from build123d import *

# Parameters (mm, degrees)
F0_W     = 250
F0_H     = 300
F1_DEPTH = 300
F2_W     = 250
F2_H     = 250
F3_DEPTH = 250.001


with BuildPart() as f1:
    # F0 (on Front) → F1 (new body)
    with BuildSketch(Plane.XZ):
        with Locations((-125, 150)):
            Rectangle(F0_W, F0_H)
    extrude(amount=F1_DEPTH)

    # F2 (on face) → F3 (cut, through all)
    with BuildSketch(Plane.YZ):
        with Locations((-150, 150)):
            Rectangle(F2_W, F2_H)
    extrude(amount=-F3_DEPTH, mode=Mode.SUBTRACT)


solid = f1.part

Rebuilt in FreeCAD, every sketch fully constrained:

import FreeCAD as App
import Part
import Sketcher
from FreeCAD import Vector
Q = App.Units.Quantity


def add_polygon(sketch, points):
    """Adds a closed chain of lines whose ends are joined by coincident constraints."""
    first, n = sketch.GeometryCount, len(points)
    for a, b in zip(points, points[1:] + points[:1]):
        sketch.addGeometry(Part.LineSegment(App.Vector(*a, 0), App.Vector(*b, 0)), False)
    for i in range(n):
        sketch.addConstraint(Sketcher.Constraint("Coincident", first + i, 2, first + (i + 1) % n, 1))

doc = App.newDocument("Part")
body = doc.addObject("PartDesign::Body", "Body")

# Sketch on XZ plane
sketch1 = body.newObject("Sketcher::SketchObject", "Sketch")
sketch1.AttachmentSupport = (doc.getObject("XZ_Plane"), [""])
sketch1.MapMode = "FlatFace"
add_polygon(sketch1, [(-250, 300), (-250, 0), (0, 0), (0, 300)])  # lines 0-3
sketch1.addConstraint([
    Sketcher.Constraint("Vertical", 0),
    Sketcher.Constraint("Horizontal", 1),
    Sketcher.Constraint("Vertical", 2),
    Sketcher.Constraint("Horizontal", 3),
    Sketcher.Constraint("Coincident", 1, 2, -1, 1),
    Sketcher.Constraint("DistanceX", 1, 1, 1, 2, Q("250 mm")),
    Sketcher.Constraint("DistanceY", 0, 2, 0, 1, Q("300 mm")),
])
pad1 = body.newObject("PartDesign::Pad", "Pad")
pad1.Profile = sketch1
pad1.Length = 300

# Sketch on YZ plane
sketch2 = body.newObject("Sketcher::SketchObject", "Sketch001")
sketch2.AttachmentSupport = (doc.getObject("YZ_Plane"), [""])
sketch2.MapMode = "FlatFace"
add_polygon(sketch2, [(-275, 275), (-275, 25), (-25, 25), (-25, 275)])  # lines 0-3
sketch2.addConstraint([
    Sketcher.Constraint("Vertical", 0),
    Sketcher.Constraint("Horizontal", 1),
    Sketcher.Constraint("Vertical", 2),
    Sketcher.Constraint("Horizontal", 3),
    Sketcher.Constraint("Equal", 3, 0),
    Sketcher.Constraint("DistanceX", 1, 1, 1, 2, Q("250 mm")),
    Sketcher.Constraint("DistanceX", 0, 2, -1, 1, Q("275 mm")),
    Sketcher.Constraint("DistanceY", -1, 1, 0, 2, Q("25 mm")),
])
pocket1 = body.newObject("PartDesign::Pocket", "Pocket")
pocket1.Profile = sketch2
pocket1.Type = "ThroughAll"

doc.recompute()
